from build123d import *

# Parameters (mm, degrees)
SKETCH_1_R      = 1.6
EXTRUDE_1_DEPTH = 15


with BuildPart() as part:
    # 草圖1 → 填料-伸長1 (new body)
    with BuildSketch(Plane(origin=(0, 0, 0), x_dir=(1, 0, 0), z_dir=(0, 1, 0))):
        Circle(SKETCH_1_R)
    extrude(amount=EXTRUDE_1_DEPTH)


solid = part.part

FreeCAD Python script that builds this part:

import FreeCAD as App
import Part
import Sketcher

V = App.Vector
Q = App.Units.Quantity

doc = App.newDocument("Part")
params = doc.addObject("Spreadsheet::Sheet", "Params")
for row, (alias, value) in enumerate([
    ("sketch1_diameter", "3.2 mm"),
    ("pad1_length", "15 mm"),
], start=1):
    params.set(f"A{row}", alias)
    params.set(f"B{row}", "=" + value)
    params.setAlias(f"B{row}", alias)

body = doc.addObject("PartDesign::Body", "Body")

sketch1 = doc.addObject("Sketcher::SketchObject", "Sketch")
body.addObject(sketch1)
sketch1.AttachmentSupport = (doc.XZ_Plane, [""])
sketch1.MapMode = "FlatFace"
sketch1.addGeometry(Part.Circle(V(0, 0, 0), V(0, 0, 1), 1.6), False)
sketch1.addConstraint(Sketcher.Constraint("Coincident", 0, 3, -1, 1))
sketch1.addConstraint(Sketcher.Constraint("Diameter", 0, Q("3.2 mm")))
sketch1.setExpression("Constraints[1]", "Params.sketch1_diameter")
pad1 = doc.addObject("PartDesign::Pad", "Pad")
body.addObject(pad1)
pad1.Profile = sketch1
pad1.setExpression("Length", "Params.pad1_length")
pad1.Reversed = True

doc.recompute()
